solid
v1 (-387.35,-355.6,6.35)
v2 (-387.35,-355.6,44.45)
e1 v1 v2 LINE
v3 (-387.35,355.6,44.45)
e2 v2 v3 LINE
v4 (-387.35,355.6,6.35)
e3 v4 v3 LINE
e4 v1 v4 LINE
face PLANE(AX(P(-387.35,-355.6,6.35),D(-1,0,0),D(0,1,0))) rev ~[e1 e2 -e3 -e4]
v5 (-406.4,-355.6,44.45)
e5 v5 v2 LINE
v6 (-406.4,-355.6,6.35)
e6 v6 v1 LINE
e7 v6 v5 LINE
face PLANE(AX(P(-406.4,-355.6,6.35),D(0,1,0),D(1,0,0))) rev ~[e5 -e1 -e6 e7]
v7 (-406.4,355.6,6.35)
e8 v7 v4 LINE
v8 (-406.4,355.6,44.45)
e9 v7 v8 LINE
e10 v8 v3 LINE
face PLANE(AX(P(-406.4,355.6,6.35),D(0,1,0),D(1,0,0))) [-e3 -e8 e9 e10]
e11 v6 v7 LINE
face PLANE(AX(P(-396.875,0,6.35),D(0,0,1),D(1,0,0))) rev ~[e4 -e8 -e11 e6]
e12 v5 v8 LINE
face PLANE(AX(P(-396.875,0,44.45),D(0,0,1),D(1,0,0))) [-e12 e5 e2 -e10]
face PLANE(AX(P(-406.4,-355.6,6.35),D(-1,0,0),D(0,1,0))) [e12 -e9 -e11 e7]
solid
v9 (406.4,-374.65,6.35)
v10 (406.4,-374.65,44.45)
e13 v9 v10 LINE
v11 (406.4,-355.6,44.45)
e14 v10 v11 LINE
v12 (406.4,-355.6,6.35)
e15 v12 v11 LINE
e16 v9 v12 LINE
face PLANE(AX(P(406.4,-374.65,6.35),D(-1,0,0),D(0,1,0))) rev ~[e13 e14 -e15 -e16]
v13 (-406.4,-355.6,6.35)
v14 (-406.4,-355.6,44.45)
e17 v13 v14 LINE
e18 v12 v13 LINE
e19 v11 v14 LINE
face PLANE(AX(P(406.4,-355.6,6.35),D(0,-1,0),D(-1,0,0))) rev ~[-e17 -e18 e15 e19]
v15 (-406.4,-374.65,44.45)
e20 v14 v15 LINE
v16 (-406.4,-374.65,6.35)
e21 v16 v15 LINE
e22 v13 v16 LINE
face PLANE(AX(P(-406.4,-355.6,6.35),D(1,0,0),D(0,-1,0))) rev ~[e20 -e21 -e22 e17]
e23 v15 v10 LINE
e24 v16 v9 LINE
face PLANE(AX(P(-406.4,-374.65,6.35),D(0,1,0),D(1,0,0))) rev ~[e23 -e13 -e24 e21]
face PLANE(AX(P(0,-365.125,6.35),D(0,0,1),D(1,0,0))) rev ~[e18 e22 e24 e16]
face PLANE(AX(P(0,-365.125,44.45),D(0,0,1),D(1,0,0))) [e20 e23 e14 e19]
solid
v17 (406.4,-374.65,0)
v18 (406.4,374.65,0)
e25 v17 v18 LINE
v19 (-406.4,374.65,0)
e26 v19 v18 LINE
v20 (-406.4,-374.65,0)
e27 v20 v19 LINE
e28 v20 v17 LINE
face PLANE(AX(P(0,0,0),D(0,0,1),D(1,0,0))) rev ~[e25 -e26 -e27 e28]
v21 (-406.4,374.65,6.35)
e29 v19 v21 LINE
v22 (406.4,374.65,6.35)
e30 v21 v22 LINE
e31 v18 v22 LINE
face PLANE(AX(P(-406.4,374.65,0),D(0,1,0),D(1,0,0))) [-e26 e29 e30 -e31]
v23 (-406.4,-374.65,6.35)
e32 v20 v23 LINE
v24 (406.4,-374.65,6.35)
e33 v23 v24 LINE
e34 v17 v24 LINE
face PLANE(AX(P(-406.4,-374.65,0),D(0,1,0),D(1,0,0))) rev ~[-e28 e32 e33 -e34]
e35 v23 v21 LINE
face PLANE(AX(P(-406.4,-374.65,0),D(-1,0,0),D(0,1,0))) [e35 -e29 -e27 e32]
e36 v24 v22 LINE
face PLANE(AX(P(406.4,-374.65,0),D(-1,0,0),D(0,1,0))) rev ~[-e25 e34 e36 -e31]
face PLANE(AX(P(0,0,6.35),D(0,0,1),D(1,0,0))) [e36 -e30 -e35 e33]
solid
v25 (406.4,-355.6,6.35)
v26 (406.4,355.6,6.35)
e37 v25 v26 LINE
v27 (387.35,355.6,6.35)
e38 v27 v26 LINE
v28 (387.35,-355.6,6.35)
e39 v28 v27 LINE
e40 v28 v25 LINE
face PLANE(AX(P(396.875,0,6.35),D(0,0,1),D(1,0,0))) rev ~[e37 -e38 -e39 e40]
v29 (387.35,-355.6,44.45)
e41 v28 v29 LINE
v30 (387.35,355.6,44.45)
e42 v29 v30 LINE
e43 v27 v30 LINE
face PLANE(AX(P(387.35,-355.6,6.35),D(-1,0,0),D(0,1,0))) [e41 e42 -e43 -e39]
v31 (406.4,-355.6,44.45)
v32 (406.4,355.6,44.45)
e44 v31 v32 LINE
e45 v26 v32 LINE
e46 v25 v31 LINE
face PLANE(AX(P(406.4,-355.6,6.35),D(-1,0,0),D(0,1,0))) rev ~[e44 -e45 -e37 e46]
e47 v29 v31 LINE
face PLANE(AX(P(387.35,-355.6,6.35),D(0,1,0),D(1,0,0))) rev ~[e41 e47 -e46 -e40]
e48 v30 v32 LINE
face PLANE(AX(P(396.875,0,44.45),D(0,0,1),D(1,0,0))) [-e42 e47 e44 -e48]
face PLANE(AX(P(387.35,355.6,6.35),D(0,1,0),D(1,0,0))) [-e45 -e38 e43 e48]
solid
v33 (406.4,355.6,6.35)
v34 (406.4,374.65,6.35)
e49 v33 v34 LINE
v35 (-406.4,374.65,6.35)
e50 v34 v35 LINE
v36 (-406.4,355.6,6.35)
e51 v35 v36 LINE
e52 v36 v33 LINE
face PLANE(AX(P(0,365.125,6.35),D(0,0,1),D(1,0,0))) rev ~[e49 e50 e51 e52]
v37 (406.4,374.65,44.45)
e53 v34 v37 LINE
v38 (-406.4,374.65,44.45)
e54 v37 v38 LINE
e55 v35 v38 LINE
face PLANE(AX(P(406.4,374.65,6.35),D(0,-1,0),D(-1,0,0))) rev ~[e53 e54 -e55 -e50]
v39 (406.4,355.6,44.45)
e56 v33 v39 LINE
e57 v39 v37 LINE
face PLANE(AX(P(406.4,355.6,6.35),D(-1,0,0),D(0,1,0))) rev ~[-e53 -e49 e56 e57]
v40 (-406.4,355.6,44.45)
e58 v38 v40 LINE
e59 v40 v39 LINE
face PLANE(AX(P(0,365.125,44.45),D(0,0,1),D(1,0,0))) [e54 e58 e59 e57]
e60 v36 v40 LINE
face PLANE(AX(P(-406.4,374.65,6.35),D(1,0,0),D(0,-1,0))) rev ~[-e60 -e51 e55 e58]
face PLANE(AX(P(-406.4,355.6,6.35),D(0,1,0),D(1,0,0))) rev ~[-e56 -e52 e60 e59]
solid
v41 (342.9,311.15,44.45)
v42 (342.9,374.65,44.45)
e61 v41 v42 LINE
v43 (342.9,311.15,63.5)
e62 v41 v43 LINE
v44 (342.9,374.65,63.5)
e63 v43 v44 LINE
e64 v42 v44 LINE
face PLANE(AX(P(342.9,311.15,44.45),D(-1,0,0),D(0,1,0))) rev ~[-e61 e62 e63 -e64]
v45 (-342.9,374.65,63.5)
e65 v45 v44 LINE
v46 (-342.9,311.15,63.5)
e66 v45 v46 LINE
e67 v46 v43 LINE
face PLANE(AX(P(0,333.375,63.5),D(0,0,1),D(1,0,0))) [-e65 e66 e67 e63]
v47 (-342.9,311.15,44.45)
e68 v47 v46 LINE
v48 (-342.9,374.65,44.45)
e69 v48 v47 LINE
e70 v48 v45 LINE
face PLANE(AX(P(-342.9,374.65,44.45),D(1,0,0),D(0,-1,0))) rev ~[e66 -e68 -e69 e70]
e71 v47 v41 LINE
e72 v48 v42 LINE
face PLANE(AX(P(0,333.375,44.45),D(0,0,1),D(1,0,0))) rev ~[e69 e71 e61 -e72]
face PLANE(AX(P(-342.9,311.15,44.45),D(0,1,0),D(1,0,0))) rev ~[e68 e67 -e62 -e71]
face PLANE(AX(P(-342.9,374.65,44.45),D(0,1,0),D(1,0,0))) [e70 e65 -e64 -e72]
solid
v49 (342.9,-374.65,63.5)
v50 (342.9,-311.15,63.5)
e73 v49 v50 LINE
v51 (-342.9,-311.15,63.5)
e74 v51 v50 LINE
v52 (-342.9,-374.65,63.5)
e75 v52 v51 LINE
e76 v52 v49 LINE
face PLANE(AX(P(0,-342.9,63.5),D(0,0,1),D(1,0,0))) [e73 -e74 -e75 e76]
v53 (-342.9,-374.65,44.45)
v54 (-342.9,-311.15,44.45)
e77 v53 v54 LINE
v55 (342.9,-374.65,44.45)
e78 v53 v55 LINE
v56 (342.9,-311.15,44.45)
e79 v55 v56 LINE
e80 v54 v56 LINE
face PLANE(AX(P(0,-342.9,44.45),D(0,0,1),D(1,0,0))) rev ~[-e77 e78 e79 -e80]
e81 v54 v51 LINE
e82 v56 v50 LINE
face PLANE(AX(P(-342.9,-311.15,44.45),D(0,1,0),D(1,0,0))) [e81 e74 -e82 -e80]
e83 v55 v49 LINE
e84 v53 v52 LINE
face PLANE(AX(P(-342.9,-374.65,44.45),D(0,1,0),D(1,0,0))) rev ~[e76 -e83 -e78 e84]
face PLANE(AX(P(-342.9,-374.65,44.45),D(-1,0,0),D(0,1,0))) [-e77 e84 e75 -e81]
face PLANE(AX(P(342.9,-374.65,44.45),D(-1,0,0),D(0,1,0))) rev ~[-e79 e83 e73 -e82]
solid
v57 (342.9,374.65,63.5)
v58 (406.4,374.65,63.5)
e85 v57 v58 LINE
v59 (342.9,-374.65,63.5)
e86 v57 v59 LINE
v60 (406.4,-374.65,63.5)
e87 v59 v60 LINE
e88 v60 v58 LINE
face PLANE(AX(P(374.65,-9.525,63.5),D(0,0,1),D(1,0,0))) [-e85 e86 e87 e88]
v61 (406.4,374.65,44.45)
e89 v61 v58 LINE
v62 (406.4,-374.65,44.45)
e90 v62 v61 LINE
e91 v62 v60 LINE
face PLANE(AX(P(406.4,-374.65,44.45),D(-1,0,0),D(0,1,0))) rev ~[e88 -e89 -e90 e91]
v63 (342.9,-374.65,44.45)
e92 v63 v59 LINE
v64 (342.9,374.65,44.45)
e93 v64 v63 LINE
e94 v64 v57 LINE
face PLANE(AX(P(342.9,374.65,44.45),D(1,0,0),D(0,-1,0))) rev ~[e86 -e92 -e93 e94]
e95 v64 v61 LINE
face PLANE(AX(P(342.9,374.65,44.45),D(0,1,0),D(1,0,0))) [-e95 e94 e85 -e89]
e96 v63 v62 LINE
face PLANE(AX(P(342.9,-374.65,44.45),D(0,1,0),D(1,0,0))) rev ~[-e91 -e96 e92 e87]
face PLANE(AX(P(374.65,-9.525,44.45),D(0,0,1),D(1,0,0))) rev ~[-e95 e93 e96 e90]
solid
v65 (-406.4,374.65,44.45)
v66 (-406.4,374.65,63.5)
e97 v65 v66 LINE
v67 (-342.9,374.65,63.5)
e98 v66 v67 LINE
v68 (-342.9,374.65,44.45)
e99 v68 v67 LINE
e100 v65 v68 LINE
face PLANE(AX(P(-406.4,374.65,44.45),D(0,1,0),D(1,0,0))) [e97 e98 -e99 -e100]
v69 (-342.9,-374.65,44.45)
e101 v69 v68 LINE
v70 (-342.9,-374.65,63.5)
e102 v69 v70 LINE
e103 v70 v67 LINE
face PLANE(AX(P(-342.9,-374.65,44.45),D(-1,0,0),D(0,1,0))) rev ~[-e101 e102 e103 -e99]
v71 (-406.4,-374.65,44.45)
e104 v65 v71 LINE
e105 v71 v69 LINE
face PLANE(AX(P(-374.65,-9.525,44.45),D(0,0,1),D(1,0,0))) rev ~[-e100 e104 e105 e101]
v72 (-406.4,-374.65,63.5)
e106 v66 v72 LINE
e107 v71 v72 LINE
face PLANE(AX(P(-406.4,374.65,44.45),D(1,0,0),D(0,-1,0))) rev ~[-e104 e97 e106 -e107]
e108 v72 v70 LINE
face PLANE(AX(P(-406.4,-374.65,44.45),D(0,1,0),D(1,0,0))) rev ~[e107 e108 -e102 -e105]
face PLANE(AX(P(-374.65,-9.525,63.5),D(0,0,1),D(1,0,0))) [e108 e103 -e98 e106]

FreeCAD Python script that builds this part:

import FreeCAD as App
import Part
import Sketcher
from FreeCAD import Vector
Q = App.Units.Quantity


def add_polygon(sketch, points):
    """Adds a closed chain of lines whose ends are joined by coincident constraints."""
    first, n = sketch.GeometryCount, len(points)
    for a, b in zip(points, points[1:] + points[:1]):
        sketch.addGeometry(Part.LineSegment(App.Vector(*a, 0), App.Vector(*b, 0)), False)
    for i in range(n):
        sketch.addConstraint(Sketcher.Constraint("Coincident", first + i, 2, first + (i + 1) % n, 1))

doc = App.newDocument("Part")
params = doc.addObject("Spreadsheet::Sheet", "Params")
for row, (alias, value) in enumerate([
    ("sketch1_width", "32 in"),
    ("sketch1_height", "29.5 in"),
    ("pad1_length", "0.25 in"),
    ("sketch2_width", "32 in"),
    ("sketch2_height", "0.75 in"),
    ("pad2_length", "1.5 in"),
    ("sketch3_width", "32 in"),
    ("sketch3_height", "0.75 in"),
    ("pad3_length", "1.5 in"),
    ("sketch4_height", "28 in"),
    ("sketch4_width", "0.75 in"),
    ("pad4_length", "1.5 in"),
    ("sketch5_height", "28 in"),
    ("sketch5_width", "0.75 in"),
    ("pad5_length", "1.5 in"),
    ("sketch6_width", "2.5 in"),
    ("sketch6_height", "29.5 in"),
    ("pad6_length", "0.75 in"),
    ("sketch7_width", "27 in"),
    ("sketch7_height", "2.5 in"),
    ("pad7_length", "0.75 in"),
], start=1):
    params.set(f"A{row}", alias)
    params.set(f"B{row}", "=" + value)
    params.setAlias(f"B{row}", alias)

body = doc.addObject("PartDesign::Body", "Body")

sketch1 = body.newObject("Sketcher::SketchObject", "Sketch")
sketch1.AttachmentSupport = (doc.getObject("XY_Plane"), [""])
sketch1.MapMode = "FlatFace"
add_polygon(sketch1, [(-406, 375), (-406, -375), (406, -375), (406, 375)])
sketch1.addConstraint(Sketcher.Constraint("Vertical", 0))
sketch1.addConstraint(Sketcher.Constraint("Horizontal", 1))
sketch1.addConstraint(Sketcher.Constraint("Vertical", 2))
sketch1.addConstraint(Sketcher.Constraint("Horizontal", 3))
sketch1.addConstraint(Sketcher.Constraint("Symmetric", 0, 2, 2, 2, -1, 1))
sketch1.addConstraint(Sketcher.Constraint("DistanceX", 1, 1, 1, 2, Q("32 in")))
sketch1.addConstraint(Sketcher.Constraint("DistanceY", 0, 2, 0, 1, Q("29.5 in")))
sketch1.setExpression("Constraints[9]", "Params.sketch1_width")
sketch1.setExpression("Constraints[10]", "Params.sketch1_height")
pad1 = body.newObject("PartDesign::Pad", "Pad")
pad1.Profile = sketch1
pad1.setExpression("Length", "Params.pad1_length")
body2 = doc.addObject("PartDesign::Body", "Body001")

sketch2 = body2.newObject("Sketcher::SketchObject", "Sketch001")
sketch2.AttachmentSupport = (doc.getObject("XY_Plane001"), [""])
sketch2.MapMode = "FlatFace"
sketch2.AttachmentOffset = App.Placement(Vector(0, 0, 0.25 * 25.4), App.Rotation())
add_polygon(sketch2, [(-406, -356), (-406, -375), (406, -375), (406, -356)])
sketch2.addConstraint(Sketcher.Constraint("Vertical", 0))
sketch2.addConstraint(Sketcher.Constraint("Horizontal", 1))
sketch2.addConstraint(Sketcher.Constraint("Vertical", 2))
sketch2.addConstraint(Sketcher.Constraint("Horizontal", 3))
sketch2.addConstraint(Sketcher.Constraint("DistanceX", 1, 1, 1, 2, Q("32 in")))
sketch2.addConstraint(Sketcher.Constraint("DistanceX", 0, 2, -1, 1, Q("16 in")))
sketch2.addConstraint(Sketcher.Constraint("DistanceY", 2, 2, -1, 1, Q("14 in")))
sketch2.addConstraint(Sketcher.Constraint("DistanceY", 0, 2, 0, 1, Q("0.75 in")))
sketch2.setExpression("Constraints[8]", "Params.sketch2_width")
sketch2.setExpression("Constraints[11]", "Params.sketch2_height")
pad2 = body2.newObject("PartDesign::Pad", "Pad001")
pad2.Profile = sketch2
pad2.setExpression("Length", "Params.pad2_length")
body3 = doc.addObject("PartDesign::Body", "Body002")

sketch3 = body3.newObject("Sketcher::SketchObject", "Sketch002")
sketch3.AttachmentSupport = (doc.getObject("XY_Plane002"), [""])
sketch3.MapMode = "FlatFace"
sketch3.AttachmentOffset = App.Placement(Vector(0, 0, 0.25 * 25.4), App.Rotation())
add_polygon(sketch3, [(406, 375), (-406, 375), (-406, 356), (406, 356)])
sketch3.addConstraint(Sketcher.Constraint("Horizontal", 0))
sketch3.addConstraint(Sketcher.Constraint("Vertical", 1))
sketch3.addConstraint(Sketcher.Constraint("Horizontal", 2))
sketch3.addConstraint(Sketcher.Constraint("Vertical", 3))
sketch3.addConstraint(Sketcher.Constraint("DistanceX", 0, 2, 0, 1, Q("32 in")))
sketch3.addConstraint(Sketcher.Constraint("DistanceX", 0, 2, -1, 1, Q("16 in")))
sketch3.addConstraint(Sketcher.Constraint("DistanceY", -1, 1, 1, 2, Q("14 in")))
sketch3.addConstraint(Sketcher.Constraint("DistanceY", 1, 2, 1, 1, Q("0.75 in")))
sketch3.setExpression("Constraints[8]", "Params.sketch3_width")
sketch3.setExpression("Constraints[11]", "Params.sketch3_height")
pad3 = body3.newObject("PartDesign::Pad", "Pad002")
pad3.Profile = sketch3
pad3.setExpression("Length", "Params.pad3_length")
body4 = doc.addObject("PartDesign::Body", "Body003")

sketch4 = body4.newObject("Sketcher::SketchObject", "Sketch003")
sketch4.AttachmentSupport = (doc.getObject("XY_Plane003"), [""])
sketch4.MapMode = "FlatFace"
sketch4.AttachmentOffset = App.Placement(Vector(0, 0, 0.25 * 25.4), App.Rotation())
add_polygon(sketch4, [(-406, 356), (-406, -356), (-387, -356), (-387, 356)])
sketch4.addConstraint(Sketcher.Constraint("Vertical", 0))
sketch4.addConstraint(Sketcher.Constraint("Horizontal", 1))
sketch4.addConstraint(Sketcher.Constraint("Vertical", 2))
sketch4.addConstraint(Sketcher.Constraint("Horizontal", 3))
sketch4.addConstraint(Sketcher.Constraint("DistanceY", 0, 2, 0, 1, Q("28 in")))
sketch4.addConstraint(Sketcher.Constraint("DistanceX", 0, 2, -1, 1, Q("16 in")))
sketch4.addConstraint(Sketcher.Constraint("DistanceY", 0, 2, -1, 1, Q("14 in")))
sketch4.addConstraint(Sketcher.Constraint("DistanceX", 1, 1, 1, 2, Q("0.75 in")))
sketch4.setExpression("Constraints[8]", "Params.sketch4_height")
sketch4.setExpression("Constraints[11]", "Params.sketch4_width")
pad4 = body4.newObject("PartDesign::Pad", "Pad003")
pad4.Profile = sketch4
pad4.setExpression("Length", "Params.pad4_length")
body5 = doc.addObject("PartDesign::Body", "Body004")

sketch5 = body5.newObject("Sketcher::SketchObject", "Sketch004")
sketch5.AttachmentSupport = (doc.getObject("XY_Plane004"), [""])
sketch5.MapMode = "FlatFace"
sketch5.AttachmentOffset = App.Placement(Vector(0, 0, 0.25 * 25.4), App.Rotation())
add_polygon(sketch5, [(387, 356), (387, -356), (406, -356), (406, 356)])
sketch5.addConstraint(Sketcher.Constraint("Vertical", 0))
sketch5.addConstraint(Sketcher.Constraint("Horizontal", 1))
sketch5.addConstraint(Sketcher.Constraint("Vertical", 2))
sketch5.addConstraint(Sketcher.Constraint("Horizontal", 3))
sketch5.addConstraint(Sketcher.Constraint("DistanceY", 0, 2, 0, 1, Q("28 in")))
sketch5.addConstraint(Sketcher.Constraint("DistanceY", 0, 2, -1, 1, Q("14 in")))
sketch5.addConstraint(Sketcher.Constraint("DistanceX", -1, 1, 1, 2, Q("16 in")))
sketch5.addConstraint(Sketcher.Constraint("DistanceX", 1, 1, 1, 2, Q("0.75 in")))
sketch5.setExpression("Constraints[8]", "Params.sketch5_height")
sketch5.setExpression("Constraints[11]", "Params.sketch5_width")
pad5 = body5.newObject("PartDesign::Pad", "Pad004")
pad5.Profile = sketch5
pad5.setExpression("Length", "Params.pad5_length")
body6 = doc.addObject("PartDesign::Body", "Body005")
body6.AllowCompound = True

sketch6 = body6.newObject("Sketcher::SketchObject", "Sketch005")
sketch6.AttachmentSupport = (doc.getObject("XY_Plane005"), [""])
sketch6.MapMode = "FlatFace"
sketch6.AttachmentOffset = App.Placement(Vector(0, 0, 1.75 * 25.4), App.Rotation())
add_polygon(sketch6, [(-406, -375), (-343, -375), (-343, 375), (-406, 375)])
add_polygon(sketch6, [(343, -375), (406, -375), (406, 375), (343, 375)])
sketch6.addConstraint(Sketcher.Constraint("Horizontal", 0))
sketch6.addConstraint(Sketcher.Constraint("Vertical", 1))
sketch6.addConstraint(Sketcher.Constraint("Horizontal", 2))
sketch6.addConstraint(Sketcher.Constraint("Vertical", 3))
sketch6.addConstraint(Sketcher.Constraint("Horizontal", 4))
sketch6.addConstraint(Sketcher.Constraint("Vertical", 5))
sketch6.addConstraint(Sketcher.Constraint("Horizontal", 6))
sketch6.addConstraint(Sketcher.Constraint("Vertical", 7))
sketch6.addConstraint(Sketcher.Constraint("Symmetric", 2, 2, 4, 2, -1, 1))
sketch6.addConstraint(Sketcher.Constraint("Symmetric", 0, 2, 6, 2, -1, 1))
sketch6.addConstraint(Sketcher.Constraint("Horizontal", 3, 2, 4, 2))
sketch6.addConstraint(Sketcher.Constraint("DistanceX", 0, 1, 0, 2, Q("2.5 in")))
sketch6.addConstraint(Sketcher.Constraint("DistanceY", 1, 1, 1, 2, Q("29.5 in")))
sketch6.addConstraint(Sketcher.Constraint("DistanceX", 2, 2, -1, 1, Q("16 in")))
sketch6.setExpression("Constraints[19]", "Params.sketch6_width")
sketch6.setExpression("Constraints[20]", "Params.sketch6_height")
pad6 = body6.newObject("PartDesign::Pad", "Pad005")
pad6.Profile = sketch6
pad6.setExpression("Length", "Params.pad6_length")
body7 = doc.addObject("PartDesign::Body", "Body006")
body7.AllowCompound = True

sketch7 = body7.newObject("Sketcher::SketchObject", "Sketch006")
sketch7.AttachmentSupport = (doc.getObject("XY_Plane006"), [""])
sketch7.MapMode = "FlatFace"
sketch7.AttachmentOffset = App.Placement(Vector(0, 0, 1.75 * 25.4), App.Rotation())
add_polygon(sketch7, [(-343, -311), (-343, -375), (343, -375), (343, -311)])
add_polygon(sketch7, [(-343, 311), (343, 311), (343, 375), (-343, 375)])
sketch7.addConstraint(Sketcher.Constraint("Vertical", 0))
sketch7.addConstraint(Sketcher.Constraint("Horizontal", 1))
sketch7.addConstraint(Sketcher.Constraint("Vertical", 2))
sketch7.addConstraint(Sketcher.Constraint("Horizontal", 3))
sketch7.addConstraint(Sketcher.Constraint("Horizontal", 4))
sketch7.addConstraint(Sketcher.Constraint("Vertical", 5))
sketch7.addConstraint(Sketcher.Constraint("Horizontal", 6))
sketch7.addConstraint(Sketcher.Constraint("Vertical", 7))
sketch7.addConstraint(Sketcher.Constraint("Symmetric", 3, 2, 4, 2, -1, 1))
sketch7.addConstraint(Sketcher.Constraint("Symmetric", 1, 2, 6, 2, -1, 1))
sketch7.addConstraint(Sketcher.Constraint("Vertical", 2, 2, 4, 2))
sketch7.addConstraint(Sketcher.Constraint("DistanceX", 1, 1, 1, 2, Q("27 in")))
sketch7.addConstraint(Sketcher.Constraint("DistanceY", 0, 2, 0, 1, Q("2.5 in")))
sketch7.addConstraint(Sketcher.Constraint("DistanceY", 1, 2, 4, 2, Q("27 in")))
sketch7.setExpression("Constraints[19]", "Params.sketch7_width")
sketch7.setExpression("Constraints[20]", "Params.sketch7_height")
pad7 = body7.newObject("PartDesign::Pad", "Pad006")
pad7.Profile = sketch7
pad7.setExpression("Length", "Params.pad7_length")

doc.recompute()
